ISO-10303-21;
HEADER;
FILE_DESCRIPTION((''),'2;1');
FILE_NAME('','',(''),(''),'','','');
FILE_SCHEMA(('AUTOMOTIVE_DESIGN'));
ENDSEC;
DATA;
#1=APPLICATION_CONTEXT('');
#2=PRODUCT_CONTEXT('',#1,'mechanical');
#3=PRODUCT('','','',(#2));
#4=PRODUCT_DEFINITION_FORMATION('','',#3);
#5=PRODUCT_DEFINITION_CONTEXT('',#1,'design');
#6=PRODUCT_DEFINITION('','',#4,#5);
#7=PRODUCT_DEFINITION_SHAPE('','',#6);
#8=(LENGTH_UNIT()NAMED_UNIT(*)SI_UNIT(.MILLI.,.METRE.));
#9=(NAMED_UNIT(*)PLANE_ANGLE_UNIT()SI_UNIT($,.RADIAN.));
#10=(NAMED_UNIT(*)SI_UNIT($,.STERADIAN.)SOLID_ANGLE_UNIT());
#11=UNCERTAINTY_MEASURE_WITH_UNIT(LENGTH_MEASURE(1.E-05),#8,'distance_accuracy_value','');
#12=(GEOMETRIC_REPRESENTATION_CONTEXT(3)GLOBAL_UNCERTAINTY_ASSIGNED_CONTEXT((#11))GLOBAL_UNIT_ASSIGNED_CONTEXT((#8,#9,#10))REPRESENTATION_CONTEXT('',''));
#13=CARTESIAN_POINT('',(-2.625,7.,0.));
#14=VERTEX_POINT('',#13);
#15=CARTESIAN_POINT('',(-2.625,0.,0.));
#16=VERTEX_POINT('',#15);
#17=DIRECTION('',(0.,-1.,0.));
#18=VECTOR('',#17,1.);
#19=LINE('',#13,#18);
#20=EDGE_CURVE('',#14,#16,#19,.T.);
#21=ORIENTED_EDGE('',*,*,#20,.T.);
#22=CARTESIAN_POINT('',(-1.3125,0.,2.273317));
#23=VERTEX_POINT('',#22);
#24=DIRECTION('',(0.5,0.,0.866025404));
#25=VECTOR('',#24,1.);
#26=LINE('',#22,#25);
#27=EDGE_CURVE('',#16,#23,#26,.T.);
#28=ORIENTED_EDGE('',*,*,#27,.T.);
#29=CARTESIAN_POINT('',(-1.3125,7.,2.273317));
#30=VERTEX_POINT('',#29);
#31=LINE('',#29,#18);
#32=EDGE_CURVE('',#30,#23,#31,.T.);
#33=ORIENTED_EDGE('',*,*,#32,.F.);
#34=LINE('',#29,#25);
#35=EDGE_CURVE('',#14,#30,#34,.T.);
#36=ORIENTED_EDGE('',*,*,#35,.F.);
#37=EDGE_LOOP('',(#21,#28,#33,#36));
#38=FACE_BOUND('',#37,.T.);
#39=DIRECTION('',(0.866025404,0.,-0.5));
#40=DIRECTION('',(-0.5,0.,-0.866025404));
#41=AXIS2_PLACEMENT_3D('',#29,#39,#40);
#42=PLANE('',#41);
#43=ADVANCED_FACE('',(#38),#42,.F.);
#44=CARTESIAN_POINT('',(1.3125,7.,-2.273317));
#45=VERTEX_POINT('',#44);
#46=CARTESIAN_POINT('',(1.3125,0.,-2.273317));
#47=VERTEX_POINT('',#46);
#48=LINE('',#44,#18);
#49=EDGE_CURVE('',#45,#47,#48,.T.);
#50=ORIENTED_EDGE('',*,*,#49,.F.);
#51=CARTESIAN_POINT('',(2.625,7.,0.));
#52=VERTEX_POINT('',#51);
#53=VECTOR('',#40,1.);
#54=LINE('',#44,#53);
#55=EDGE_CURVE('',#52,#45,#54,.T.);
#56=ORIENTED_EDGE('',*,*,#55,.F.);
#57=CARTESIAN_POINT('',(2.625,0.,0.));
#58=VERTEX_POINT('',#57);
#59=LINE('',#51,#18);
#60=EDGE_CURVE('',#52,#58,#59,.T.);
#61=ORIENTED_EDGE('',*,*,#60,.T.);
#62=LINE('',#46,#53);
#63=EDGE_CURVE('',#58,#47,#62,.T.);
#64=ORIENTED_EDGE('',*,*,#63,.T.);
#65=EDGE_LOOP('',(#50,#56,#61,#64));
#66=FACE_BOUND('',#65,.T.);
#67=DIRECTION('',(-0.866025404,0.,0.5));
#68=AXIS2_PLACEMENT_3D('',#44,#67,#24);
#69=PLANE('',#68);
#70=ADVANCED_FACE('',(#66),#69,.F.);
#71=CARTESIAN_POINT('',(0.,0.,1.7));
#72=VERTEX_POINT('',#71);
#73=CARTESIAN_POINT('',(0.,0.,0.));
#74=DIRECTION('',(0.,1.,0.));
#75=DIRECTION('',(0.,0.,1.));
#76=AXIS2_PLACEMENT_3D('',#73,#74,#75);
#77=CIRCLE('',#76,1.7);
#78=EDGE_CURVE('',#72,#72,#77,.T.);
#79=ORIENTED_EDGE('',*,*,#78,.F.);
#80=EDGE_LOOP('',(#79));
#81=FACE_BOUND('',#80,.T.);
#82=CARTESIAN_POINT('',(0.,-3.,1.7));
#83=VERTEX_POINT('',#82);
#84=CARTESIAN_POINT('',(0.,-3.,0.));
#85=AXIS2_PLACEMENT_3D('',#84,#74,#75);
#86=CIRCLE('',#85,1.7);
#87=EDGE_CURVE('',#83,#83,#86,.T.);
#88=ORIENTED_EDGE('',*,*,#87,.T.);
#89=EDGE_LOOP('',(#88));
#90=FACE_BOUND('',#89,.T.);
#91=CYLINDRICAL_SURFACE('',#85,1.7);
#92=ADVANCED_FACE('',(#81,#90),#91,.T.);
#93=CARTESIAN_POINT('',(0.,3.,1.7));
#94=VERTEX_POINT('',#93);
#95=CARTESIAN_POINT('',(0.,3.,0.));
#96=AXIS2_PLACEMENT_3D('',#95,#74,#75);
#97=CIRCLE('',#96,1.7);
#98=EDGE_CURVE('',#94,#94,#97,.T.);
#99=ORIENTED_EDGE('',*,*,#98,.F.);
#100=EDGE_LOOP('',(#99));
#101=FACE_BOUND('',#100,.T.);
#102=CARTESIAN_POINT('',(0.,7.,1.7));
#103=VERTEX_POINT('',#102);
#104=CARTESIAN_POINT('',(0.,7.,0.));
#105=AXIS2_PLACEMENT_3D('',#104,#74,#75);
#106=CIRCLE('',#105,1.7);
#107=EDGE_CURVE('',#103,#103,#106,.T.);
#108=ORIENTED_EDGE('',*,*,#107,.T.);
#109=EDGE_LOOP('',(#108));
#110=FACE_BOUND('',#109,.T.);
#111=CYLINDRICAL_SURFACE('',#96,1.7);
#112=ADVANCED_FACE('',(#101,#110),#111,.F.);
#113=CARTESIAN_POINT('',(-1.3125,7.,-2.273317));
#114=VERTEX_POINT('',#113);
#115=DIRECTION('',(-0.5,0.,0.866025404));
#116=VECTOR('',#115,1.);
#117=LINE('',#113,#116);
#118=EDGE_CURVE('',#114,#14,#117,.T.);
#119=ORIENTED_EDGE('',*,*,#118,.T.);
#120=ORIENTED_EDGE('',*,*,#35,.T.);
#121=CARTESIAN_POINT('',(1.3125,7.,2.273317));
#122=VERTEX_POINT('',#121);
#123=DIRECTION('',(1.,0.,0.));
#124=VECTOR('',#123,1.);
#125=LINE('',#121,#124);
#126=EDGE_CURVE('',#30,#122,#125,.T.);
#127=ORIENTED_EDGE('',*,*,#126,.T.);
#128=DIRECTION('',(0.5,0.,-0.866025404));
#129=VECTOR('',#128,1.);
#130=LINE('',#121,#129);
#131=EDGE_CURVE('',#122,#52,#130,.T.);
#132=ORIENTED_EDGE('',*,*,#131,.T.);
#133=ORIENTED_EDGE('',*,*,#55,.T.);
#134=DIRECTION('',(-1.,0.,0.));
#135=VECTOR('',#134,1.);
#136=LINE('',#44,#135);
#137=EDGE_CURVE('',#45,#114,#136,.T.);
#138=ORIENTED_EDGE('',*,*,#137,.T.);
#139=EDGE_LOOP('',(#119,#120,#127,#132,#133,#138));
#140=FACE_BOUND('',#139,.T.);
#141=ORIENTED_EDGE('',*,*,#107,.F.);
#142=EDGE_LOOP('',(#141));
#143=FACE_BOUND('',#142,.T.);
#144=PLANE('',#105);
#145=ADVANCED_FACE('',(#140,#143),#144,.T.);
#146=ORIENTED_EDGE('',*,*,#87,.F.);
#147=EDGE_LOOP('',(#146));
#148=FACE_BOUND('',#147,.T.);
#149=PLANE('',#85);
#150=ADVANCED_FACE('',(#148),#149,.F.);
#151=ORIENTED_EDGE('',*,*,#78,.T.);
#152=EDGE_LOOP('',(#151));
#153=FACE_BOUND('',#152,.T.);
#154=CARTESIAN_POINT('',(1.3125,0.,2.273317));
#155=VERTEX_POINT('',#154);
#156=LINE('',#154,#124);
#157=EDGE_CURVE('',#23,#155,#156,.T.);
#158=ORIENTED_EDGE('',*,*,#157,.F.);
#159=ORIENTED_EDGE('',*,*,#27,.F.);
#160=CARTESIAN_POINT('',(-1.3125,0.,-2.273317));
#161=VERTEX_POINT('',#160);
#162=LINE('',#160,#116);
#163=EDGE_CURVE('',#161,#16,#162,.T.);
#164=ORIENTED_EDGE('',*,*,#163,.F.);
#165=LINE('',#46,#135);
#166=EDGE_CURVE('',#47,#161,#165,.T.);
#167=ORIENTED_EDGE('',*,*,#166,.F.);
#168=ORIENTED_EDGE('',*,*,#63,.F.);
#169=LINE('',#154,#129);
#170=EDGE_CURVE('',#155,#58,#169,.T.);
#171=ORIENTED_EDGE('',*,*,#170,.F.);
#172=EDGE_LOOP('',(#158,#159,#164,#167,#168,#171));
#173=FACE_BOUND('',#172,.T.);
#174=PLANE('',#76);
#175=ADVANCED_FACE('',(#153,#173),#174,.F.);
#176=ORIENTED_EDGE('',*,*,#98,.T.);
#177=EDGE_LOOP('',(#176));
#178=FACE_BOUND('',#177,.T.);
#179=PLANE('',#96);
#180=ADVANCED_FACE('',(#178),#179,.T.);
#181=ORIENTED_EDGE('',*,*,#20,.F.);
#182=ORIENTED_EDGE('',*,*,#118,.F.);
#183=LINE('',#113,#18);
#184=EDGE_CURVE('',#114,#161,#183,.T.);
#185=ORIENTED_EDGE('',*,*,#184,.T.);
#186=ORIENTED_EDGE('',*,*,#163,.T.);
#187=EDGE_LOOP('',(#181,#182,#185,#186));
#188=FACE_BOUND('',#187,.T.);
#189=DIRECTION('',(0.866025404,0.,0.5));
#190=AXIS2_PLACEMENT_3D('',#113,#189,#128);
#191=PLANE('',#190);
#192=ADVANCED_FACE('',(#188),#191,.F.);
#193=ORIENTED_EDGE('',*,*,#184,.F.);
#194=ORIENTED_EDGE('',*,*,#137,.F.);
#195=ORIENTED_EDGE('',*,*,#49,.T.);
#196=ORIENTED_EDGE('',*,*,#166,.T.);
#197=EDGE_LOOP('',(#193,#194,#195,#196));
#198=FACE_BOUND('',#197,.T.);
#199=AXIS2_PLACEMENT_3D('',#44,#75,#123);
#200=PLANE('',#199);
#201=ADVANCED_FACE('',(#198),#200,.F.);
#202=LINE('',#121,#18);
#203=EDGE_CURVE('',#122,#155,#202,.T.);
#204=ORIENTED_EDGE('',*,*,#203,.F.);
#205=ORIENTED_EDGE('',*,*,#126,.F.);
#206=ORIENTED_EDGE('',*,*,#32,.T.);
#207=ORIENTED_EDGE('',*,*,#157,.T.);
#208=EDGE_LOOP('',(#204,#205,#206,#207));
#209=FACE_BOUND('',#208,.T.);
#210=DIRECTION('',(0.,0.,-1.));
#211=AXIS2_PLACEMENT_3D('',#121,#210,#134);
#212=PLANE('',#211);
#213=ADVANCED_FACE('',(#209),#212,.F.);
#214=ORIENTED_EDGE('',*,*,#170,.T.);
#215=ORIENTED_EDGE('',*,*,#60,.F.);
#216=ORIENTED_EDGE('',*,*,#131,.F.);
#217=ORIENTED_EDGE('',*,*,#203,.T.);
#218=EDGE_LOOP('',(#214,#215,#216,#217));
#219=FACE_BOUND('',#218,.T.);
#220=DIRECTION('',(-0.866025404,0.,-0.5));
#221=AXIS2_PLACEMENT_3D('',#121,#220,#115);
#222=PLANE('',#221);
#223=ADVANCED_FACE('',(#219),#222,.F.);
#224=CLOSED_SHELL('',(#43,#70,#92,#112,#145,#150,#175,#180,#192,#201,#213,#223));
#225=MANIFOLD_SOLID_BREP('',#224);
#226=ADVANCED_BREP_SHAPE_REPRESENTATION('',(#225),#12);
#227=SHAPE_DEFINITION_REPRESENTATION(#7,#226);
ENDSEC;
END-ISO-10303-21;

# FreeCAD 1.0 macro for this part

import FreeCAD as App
import Part
import Sketcher
from FreeCAD import Vector
Q = App.Units.Quantity


def add_polygon(sketch, points):
    """Adds a closed chain of lines whose ends are joined by coincident constraints."""
    first, n = sketch.GeometryCount, len(points)
    for a, b in zip(points, points[1:] + points[:1]):
        sketch.addGeometry(Part.LineSegment(App.Vector(*a, 0), App.Vector(*b, 0)), False)
    for i in range(n):
        sketch.addConstraint(Sketcher.Constraint("Coincident", first + i, 2, first + (i + 1) % n, 1))

doc = App.newDocument("Part")
body = doc.addObject("PartDesign::Body", "Body")

sketch1 = body.newObject("Sketcher::SketchObject", "Sketch")
sketch1.AttachmentSupport = (doc.getObject("XZ_Plane"), [""])
sketch1.MapMode = "FlatFace"
add_polygon(sketch1, [(1.3, 2.3), (2.6, 0), (1.3, -2.3), (-1.3, -2.3), (-2.6, 0), (-1.3, 2.3)])
sketch1.addConstraint([
    Sketcher.Constraint("Horizontal", 2),
    Sketcher.Constraint("Horizontal", 5),
    Sketcher.Constraint("Symmetric", 0, 2, 3, 2, -1, 1),
    Sketcher.Constraint("Symmetric", 1, 2, 4, 2, -1, 1),
    Sketcher.Constraint("PointOnObject", 0, 2, -1),
    Sketcher.Constraint("Parallel", 0, 3),
    Sketcher.Constraint("Vertical", 2, 2, 4, 2),
    Sketcher.Constraint("Angle", 0, Q("-60 deg")),
    Sketcher.Constraint("DistanceX", 2, 2, 2, 1, Q("2.625 mm")),
    Sketcher.Constraint("DistanceX", 3, 2, 0, 2, Q("5.25 mm")),
])
pad1 = body.newObject("PartDesign::Pad", "Pad")
pad1.Profile = sketch1
pad1.Length = 7
pad1.Reversed = True

sketch2 = body.newObject("Sketcher::SketchObject", "Sketch001")
sketch2.AttachmentSupport = (doc.getObject("XZ_Plane"), [""])
sketch2.MapMode = "FlatFace"
sketch2.addGeometry(Part.Circle(Vector(0, 0, 0), Vector(0, 0, 1), 1.7), False)
sketch2.addConstraint([
    Sketcher.Constraint("Coincident", 0, 3, -1, 1),
    Sketcher.Constraint("Diameter", 0, Q("3.4 mm")),
])
pad2 = body.newObject("PartDesign::Pad", "Pad001")
pad2.Profile = sketch2
pad2.Length = 3

sketch3 = body.newObject("Sketcher::SketchObject", "Sketch002")
sketch3.AttachmentSupport = (doc.getObject("XZ_Plane"), [""])
sketch3.MapMode = "FlatFace"
sketch3.AttachmentOffset = App.Placement(Vector(0, 0, -7), App.Rotation())
sketch3.addGeometry(Part.Circle(Vector(0, 0, 0), Vector(0, 0, 1), 1.7), False)
sketch3.addConstraint([
    Sketcher.Constraint("Coincident", 0, 3, -1, 1),
    Sketcher.Constraint("Diameter", 0, Q("3.4 mm")),
])
pocket1 = body.newObject("PartDesign::Pocket", "Pocket")
pocket1.Profile = sketch3
pocket1.Length = 4
pocket1.Reversed = True

doc.recompute()
